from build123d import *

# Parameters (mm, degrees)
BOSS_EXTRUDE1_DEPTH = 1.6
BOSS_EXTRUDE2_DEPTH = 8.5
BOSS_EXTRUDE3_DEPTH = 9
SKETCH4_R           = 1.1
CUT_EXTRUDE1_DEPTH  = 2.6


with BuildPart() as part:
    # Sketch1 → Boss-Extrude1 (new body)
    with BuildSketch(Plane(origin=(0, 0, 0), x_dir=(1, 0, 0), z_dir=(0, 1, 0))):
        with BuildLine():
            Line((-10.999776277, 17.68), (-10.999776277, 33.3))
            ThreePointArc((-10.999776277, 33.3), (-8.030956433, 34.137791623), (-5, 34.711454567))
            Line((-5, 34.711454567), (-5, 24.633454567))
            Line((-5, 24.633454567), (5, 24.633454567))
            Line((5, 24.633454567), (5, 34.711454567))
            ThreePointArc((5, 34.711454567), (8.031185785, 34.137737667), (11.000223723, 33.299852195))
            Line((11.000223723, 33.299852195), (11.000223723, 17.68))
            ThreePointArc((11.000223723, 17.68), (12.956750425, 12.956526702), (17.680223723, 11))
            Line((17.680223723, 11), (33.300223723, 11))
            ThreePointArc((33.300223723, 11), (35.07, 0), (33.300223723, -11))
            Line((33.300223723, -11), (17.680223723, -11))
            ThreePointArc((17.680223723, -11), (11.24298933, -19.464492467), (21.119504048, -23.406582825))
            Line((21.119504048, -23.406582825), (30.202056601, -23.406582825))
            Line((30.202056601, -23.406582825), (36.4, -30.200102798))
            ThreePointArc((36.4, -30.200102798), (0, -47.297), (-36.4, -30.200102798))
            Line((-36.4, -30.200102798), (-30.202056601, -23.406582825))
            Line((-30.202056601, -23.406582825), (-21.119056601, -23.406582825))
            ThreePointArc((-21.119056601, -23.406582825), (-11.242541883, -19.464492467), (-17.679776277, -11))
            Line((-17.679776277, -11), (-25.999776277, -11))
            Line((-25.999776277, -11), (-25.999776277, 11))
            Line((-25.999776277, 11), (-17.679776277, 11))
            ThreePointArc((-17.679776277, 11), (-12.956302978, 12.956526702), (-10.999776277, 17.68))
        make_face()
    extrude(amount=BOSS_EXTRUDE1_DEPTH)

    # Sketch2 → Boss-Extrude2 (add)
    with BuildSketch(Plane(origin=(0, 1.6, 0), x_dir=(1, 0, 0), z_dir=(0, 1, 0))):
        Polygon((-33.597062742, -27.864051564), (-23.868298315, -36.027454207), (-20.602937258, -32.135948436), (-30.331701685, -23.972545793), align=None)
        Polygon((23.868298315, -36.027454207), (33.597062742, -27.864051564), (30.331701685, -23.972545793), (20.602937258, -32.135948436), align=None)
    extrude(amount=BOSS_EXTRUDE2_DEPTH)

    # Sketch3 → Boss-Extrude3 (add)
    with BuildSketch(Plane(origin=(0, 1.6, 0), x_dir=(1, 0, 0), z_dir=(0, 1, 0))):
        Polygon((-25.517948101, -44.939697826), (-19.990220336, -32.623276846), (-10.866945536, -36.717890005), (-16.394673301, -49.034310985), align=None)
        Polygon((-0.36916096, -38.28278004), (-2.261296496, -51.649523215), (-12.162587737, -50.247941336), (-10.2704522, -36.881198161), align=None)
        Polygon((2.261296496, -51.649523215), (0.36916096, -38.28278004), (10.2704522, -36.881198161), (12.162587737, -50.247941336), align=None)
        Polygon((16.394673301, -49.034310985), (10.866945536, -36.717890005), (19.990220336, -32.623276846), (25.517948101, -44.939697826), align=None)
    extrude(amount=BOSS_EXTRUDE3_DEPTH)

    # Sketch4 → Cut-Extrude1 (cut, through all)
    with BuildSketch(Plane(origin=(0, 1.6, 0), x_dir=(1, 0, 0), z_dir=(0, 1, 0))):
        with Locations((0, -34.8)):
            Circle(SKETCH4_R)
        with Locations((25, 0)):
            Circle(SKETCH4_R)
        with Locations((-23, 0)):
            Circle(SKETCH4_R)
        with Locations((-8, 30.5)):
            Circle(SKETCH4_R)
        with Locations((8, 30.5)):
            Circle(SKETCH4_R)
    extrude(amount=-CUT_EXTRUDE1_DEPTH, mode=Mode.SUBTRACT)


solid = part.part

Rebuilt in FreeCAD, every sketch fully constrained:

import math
import FreeCAD as App
import Part
import Sketcher
from FreeCAD import Vector
Q = App.Units.Quantity


def add_polygon(sketch, points):
    """Adds a closed chain of lines whose ends are joined by coincident constraints."""
    first, n = sketch.GeometryCount, len(points)
    for a, b in zip(points, points[1:] + points[:1]):
        sketch.addGeometry(Part.LineSegment(App.Vector(*a, 0), App.Vector(*b, 0)), False)
    for i in range(n):
        sketch.addConstraint(Sketcher.Constraint("Coincident", first + i, 2, first + (i + 1) % n, 1))

doc = App.newDocument("Part")
body = doc.addObject("PartDesign::Body", "Body")

# Sketch on XZ plane
sketch1 = body.newObject("Sketcher::SketchObject", "Sketch")
sketch1.AttachmentSupport = (doc.getObject("XZ_Plane"), [""])
sketch1.MapMode = "FlatFace"
sketch1.addGeometry([
    Part.LineSegment(Vector(-10.999776, -33.3, 0), Vector(-10.999776, -17.68, 0)),  # 0
    Part.ArcOfCircle(Part.Circle(Vector(-17.679776, -17.68, 0), Vector(0, 0, 1), 6.68), math.radians(0), math.radians(90)),  # 1
    Part.LineSegment(Vector(-17.679776, -11, 0), Vector(-25.999776, -11, 0)),  # 2
    Part.LineSegment(Vector(-25.999776, -11, 0), Vector(-25.999776, 11, 0)),  # 3
    Part.LineSegment(Vector(-25.999776, 11, 0), Vector(-17.679776, 11, 0)),  # 4
    Part.ArcOfCircle(Part.Circle(Vector(-17.679776, 17.68, 0), Vector(0, 0, 1), 6.68), math.radians(-90), math.radians(120.988253)),  # 5
    Part.LineSegment(Vector(-21.119057, 23.406583, 0), Vector(-30.202057, 23.406583, 0)),  # 6
    Part.LineSegment(Vector(-30.202057, 23.406583, 0), Vector(-36.4, 30.200103, 0)),  # 7
    Part.ArcOfCircle(Part.Circle(Vector(0, 0, 0), Vector(0, 0, 1), 47.297), math.radians(39.681583), math.radians(140.318417)),  # 8
    Part.LineSegment(Vector(36.4, 30.200103, 0), Vector(30.202057, 23.406583, 0)),  # 9
    Part.LineSegment(Vector(30.202057, 23.406583, 0), Vector(21.119504, 23.406583, 0)),  # 10
    Part.ArcOfCircle(Part.Circle(Vector(17.680224, 17.68, 0), Vector(0, 0, 1), 6.68), math.radians(59.011747), math.radians(270)),  # 11
    Part.LineSegment(Vector(17.680224, 11, 0), Vector(33.300224, 11, 0)),  # 12
    Part.ArcOfCircle(Part.Circle(Vector(0, 0, 0), Vector(0, 0, 1), 35.07), math.radians(-18.279841), math.radians(18.279841)),  # 13
    Part.LineSegment(Vector(33.300224, -11, 0), Vector(17.680224, -11, 0)),  # 14
    Part.ArcOfCircle(Part.Circle(Vector(17.680224, -17.68, 0), Vector(0, 0, 1), 6.68), math.radians(90), math.radians(180)),  # 15
    Part.LineSegment(Vector(11.000224, -17.68, 0), Vector(11.000224, -33.299852, 0)),  # 16
    Part.ArcOfCircle(Part.Circle(Vector(0, 0, 0), Vector(0, 0, 1), 35.069717), math.radians(-81.803229), math.radians(-71.719621)),  # 17
    Part.LineSegment(Vector(5, -34.711455, 0), Vector(5, -24.633455, 0)),  # 18
    Part.LineSegment(Vector(5, -24.633455, 0), Vector(-5, -24.633455, 0)),  # 19
    Part.LineSegment(Vector(-5, -24.633455, 0), Vector(-5, -34.711455, 0)),  # 20
    Part.ArcOfCircle(Part.Circle(Vector(0, 0, 0), Vector(0, 0, 1), 35.069717), math.radians(-108.279609), math.radians(-98.196771)),  # 21
], False)
sketch1.addConstraint([
    Sketcher.Constraint("Tangent", 0, 2, 1, 1),
    Sketcher.Constraint("Tangent", 1, 2, 2, 1),
    Sketcher.Constraint("Coincident", 2, 2, 3, 1),
    Sketcher.Constraint("Coincident", 3, 2, 4, 1),
    Sketcher.Constraint("Tangent", 4, 2, 5, 1),
    Sketcher.Constraint("Coincident", 5, 2, 6, 1),
    Sketcher.Constraint("Coincident", 6, 2, 7, 1),
    Sketcher.Constraint("Coincident", 7, 2, 8, 2),
    Sketcher.Constraint("Coincident", 8, 1, 9, 1),
    Sketcher.Constraint("Coincident", 9, 2, 10, 1),
    Sketcher.Constraint("Coincident", 10, 2, 11, 1),
    Sketcher.Constraint("Tangent", 11, 2, 12, 1),
    Sketcher.Constraint("Coincident", 12, 2, 13, 2),
    Sketcher.Constraint("Coincident", 13, 1, 14, 1),
    Sketcher.Constraint("Tangent", 14, 2, 15, 1),
    Sketcher.Constraint("Tangent", 15, 2, 16, 1),
    Sketcher.Constraint("Coincident", 16, 2, 17, 2),
    Sketcher.Constraint("Coincident", 17, 1, 18, 1),
    Sketcher.Constraint("Coincident", 18, 2, 19, 1),
    Sketcher.Constraint("Coincident", 19, 2, 20, 1),
    Sketcher.Constraint("Coincident", 20, 2, 21, 2),
    Sketcher.Constraint("Coincident", 21, 1, 0, 1),
    Sketcher.Constraint("Vertical", 0),
    Sketcher.Constraint("Horizontal", 2),
    Sketcher.Constraint("Vertical", 3),
    Sketcher.Constraint("Horizontal", 4),
    Sketcher.Constraint("Horizontal", 6),
    Sketcher.Constraint("Horizontal", 10),
    Sketcher.Constraint("Horizontal", 12),
    Sketcher.Constraint("Horizontal", 14),
    Sketcher.Constraint("Vertical", 16),
    Sketcher.Constraint("Vertical", 18),
    Sketcher.Constraint("Horizontal", 19),
    Sketcher.Constraint("Vertical", 20),
    Sketcher.Constraint("Coincident", 8, 3, -1, 1),
    Sketcher.Constraint("Coincident", 13, 3, -1, 1),
    Sketcher.Constraint("Coincident", 17, 3, -1, 1),
    Sketcher.Constraint("Coincident", 21, 3, -1, 1),
    Sketcher.Constraint("Equal", 1, 5),
    Sketcher.Constraint("Equal", 5, 11),
    Sketcher.Constraint("Equal", 11, 15),
    Sketcher.Constraint("Equal", 17, 21),
    Sketcher.Constraint("Symmetric", 6, 2, 9, 2, -2),
    Sketcher.Constraint("Symmetric", 1, 3, 5, 3, -1),
    Sketcher.Constraint("Symmetric", 11, 3, 15, 3, -1),
    Sketcher.Constraint("Horizontal", 5, 3, 11, 3),
    Sketcher.Constraint("Horizontal", 7, 2, 8, 1),
    Sketcher.Constraint("Horizontal", 17, 1, 20, 2),
    Sketcher.Constraint("Equal", 14, 0),
    Sketcher.Constraint("DistanceX", 19, 2, 19, 1, Q("10 mm")),
    Sketcher.Constraint("DistanceY", 3, 1, 3, 2, Q("22 mm")),
    Sketcher.Constraint("Radius", 1, Q("6.68 mm")),
    Sketcher.Constraint("Radius", 13, Q("35.07 mm")),
    Sketcher.Constraint("Radius", 8, Q("47.297 mm")),
    Sketcher.Constraint("DistanceX", 2, 2, 0, 2, Q("15 mm")),
    Sketcher.Constraint("DistanceX", 0, 2, 16, 2, Q("22 mm")),
    Sketcher.Constraint("DistanceX", 12, 1, 12, 2, Q("15.62 mm")),
    Sketcher.Constraint("DistanceX", 7, 2, -1, 1, Q("36.4 mm")),
    Sketcher.Constraint("DistanceX", 6, 2, 6, 1, Q("9.083 mm")),
    Sketcher.Constraint("DistanceY", 18, 1, 18, 2, Q("10.078 mm")),
    Sketcher.Constraint("Distance", 7, Q("9.196 mm")),
])
pad1 = body.newObject("PartDesign::Pad", "Pad")
pad1.Profile = sketch1
pad1.Length = 1.6
pad1.Reversed = True

# Sketch on XZ plane
sketch2 = body.newObject("Sketcher::SketchObject", "Sketch001")
sketch2.AttachmentSupport = (doc.getObject("XZ_Plane"), [""])
sketch2.MapMode = "FlatFace"
sketch2.AttachmentOffset = App.Placement(Vector(0, 0, -1.6), App.Rotation())
add_polygon(sketch2, [(-33.597063, 27.864052), (-23.868298, 36.027454), (-20.602937, 32.135948), (-30.331702, 23.972546)])  # lines 0-3
add_polygon(sketch2, [(23.868298, 36.027454), (33.597063, 27.864052), (30.331702, 23.972546), (20.602937, 32.135948)])  # lines 4-7
sketch2.addConstraint([
    Sketcher.Constraint("Symmetric", 3, 2, 4, 2, -2),
    Sketcher.Constraint("Symmetric", 2, 2, 5, 2, -2),
    Sketcher.Constraint("Symmetric", 1, 2, 6, 2, -2),
    Sketcher.Constraint("Symmetric", 0, 2, 7, 2, -2),
    Sketcher.Constraint("Perpendicular", 0, 1),
    Sketcher.Constraint("Perpendicular", 1, 2),
    Sketcher.Constraint("Perpendicular", 2, 3),
    Sketcher.Constraint("Angle", 0, Q("40 deg")),
    Sketcher.Constraint("Distance", 0, Q("12.7 mm")),
    Sketcher.Constraint("DistanceX", 1, 2, 4, 2, Q("54.2 mm")),
    Sketcher.Constraint("Distance", 1, Q("5.08 mm")),
    Sketcher.Constraint("DistanceY", -1, 1, 1, 2, Q("32.135948 mm")),
])
pad2 = body.newObject("PartDesign::Pad", "Pad001")
pad2.Profile = sketch2
pad2.Length = 8.5
pad2.Reversed = True

# Sketch on XZ plane
sketch3 = body.newObject("Sketcher::SketchObject", "Sketch002")
sketch3.AttachmentSupport = (doc.getObject("XZ_Plane"), [""])
sketch3.MapMode = "FlatFace"
sketch3.AttachmentOffset = App.Placement(Vector(0, 0, -1.6), App.Rotation())
add_polygon(sketch3, [(-19.99022, 32.623277), (-25.517948, 44.939698), (-16.394673, 49.034311), (-10.866946, 36.71789)])  # lines 0-3
add_polygon(sketch3, [(-2.261296, 51.649523), (-0.369161, 38.28278), (-10.270452, 36.881198), (-12.162588, 50.247941)])  # lines 4-7
add_polygon(sketch3, [(0.369161, 38.28278), (2.261296, 51.649523), (12.162588, 50.247941), (10.270452, 36.881198)])  # lines 8-11
add_polygon(sketch3, [(10.866946, 36.71789), (16.394673, 49.034311), (25.517948, 44.939698), (19.99022, 32.623277)])  # lines 12-15
sketch3.addConstraint([
    Sketcher.Constraint("Symmetric", 7, 2, 8, 2, -2),
    Sketcher.Constraint("Symmetric", 6, 2, 9, 2, -2),
    Sketcher.Constraint("Symmetric", 5, 2, 10, 2, -2),
    Sketcher.Constraint("Symmetric", 4, 2, 11, 2, -2),
    Sketcher.Constraint("Symmetric", 1, 2, 12, 2, -2),
    Sketcher.Constraint("Symmetric", 0, 2, 13, 2, -2),
    Sketcher.Constraint("Symmetric", 3, 2, 14, 2, -2),
    Sketcher.Constraint("Symmetric", 2, 2, 15, 2, -2),
    Sketcher.Constraint("Perpendicular", 0, 1),
    Sketcher.Constraint("Perpendicular", 1, 2),
    Sketcher.Constraint("Perpendicular", 2, 3),
    Sketcher.Constraint("Perpendicular", 4, 5),
    Sketcher.Constraint("Perpendicular", 5, 6),
    Sketcher.Constraint("Perpendicular", 6, 7),
    Sketcher.Constraint("Equal", 2, 4),
    Sketcher.Constraint("Equal", 3, 5),
    Sketcher.Constraint("Distance", 1, Q("10 mm")),
    Sketcher.Constraint("Distance", 0, Q("13.5 mm")),
    Sketcher.Constraint("DistanceY", -1, 1, 5, 2, Q("36.881198 mm")),
    Sketcher.Constraint("DistanceY", 5, 2, 0, 2, Q("8.0585 mm")),
    Sketcher.Constraint("DistanceX", 0, 2, -1, 1, Q("25.517948 mm")),
    Sketcher.Constraint("DistanceY", -1, 1, 1, 2, Q("49.034311 mm")),
    Sketcher.Constraint("DistanceX", 4, 2, -1, 1, Q("0.369161 mm")),
    Sketcher.Constraint("DistanceY", -1, 1, 4, 2, Q("38.28278 mm")),
])
pad3 = body.newObject("PartDesign::Pad", "Pad002")
pad3.Profile = sketch3
pad3.Length = 9
pad3.Reversed = True

# Sketch on XZ plane
sketch4 = body.newObject("Sketcher::SketchObject", "Sketch003")
sketch4.AttachmentSupport = (doc.getObject("XZ_Plane"), [""])
sketch4.MapMode = "FlatFace"
sketch4.AttachmentOffset = App.Placement(Vector(0, 0, -1.6), App.Rotation())
sketch4.addGeometry([
    Part.Circle(Vector(0, 34.8, 0), Vector(0, 0, 1), 1.1),  # 0
    Part.Circle(Vector(25, 0, 0), Vector(0, 0, 1), 1.1),  # 1
    Part.Circle(Vector(-23, 0, 0), Vector(0, 0, 1), 1.1),  # 2
    Part.Circle(Vector(-8, -30.5, 0), Vector(0, 0, 1), 1.1),  # 3
    Part.Circle(Vector(8, -30.5, 0), Vector(0, 0, 1), 1.1),  # 4
], False)
sketch4.addConstraint([
    Sketcher.Constraint("Equal", 0, 1),
    Sketcher.Constraint("Equal", 1, 2),
    Sketcher.Constraint("Equal", 2, 3),
    Sketcher.Constraint("Equal", 3, 4),
    Sketcher.Constraint("Symmetric", 3, 3, 4, 3, -2),
    Sketcher.Constraint("PointOnObject", 0, 3, -2),
    Sketcher.Constraint("PointOnObject", 1, 3, -1),
    Sketcher.Constraint("PointOnObject", 2, 3, -1),
    Sketcher.Constraint("Diameter", 0, Q("2.2 mm")),
    Sketcher.Constraint("DistanceX", -1, 1, 1, 3, Q("25 mm")),
    Sketcher.Constraint("DistanceX", 2, 3, -1, 1, Q("23 mm")),
    Sketcher.Constraint("DistanceX", 3, 3, -1, 1, Q("8 mm")),
    Sketcher.Constraint("DistanceY", -1, 1, 0, 3, Q("34.8 mm")),
    Sketcher.Constraint("DistanceY", 3, 3, -1, 1, Q("30.5 mm")),
])
pocket1 = body.newObject("PartDesign::Pocket", "Pocket")
pocket1.Profile = sketch4
pocket1.Type = "ThroughAll"
pocket1.Reversed = True

doc.recompute()
